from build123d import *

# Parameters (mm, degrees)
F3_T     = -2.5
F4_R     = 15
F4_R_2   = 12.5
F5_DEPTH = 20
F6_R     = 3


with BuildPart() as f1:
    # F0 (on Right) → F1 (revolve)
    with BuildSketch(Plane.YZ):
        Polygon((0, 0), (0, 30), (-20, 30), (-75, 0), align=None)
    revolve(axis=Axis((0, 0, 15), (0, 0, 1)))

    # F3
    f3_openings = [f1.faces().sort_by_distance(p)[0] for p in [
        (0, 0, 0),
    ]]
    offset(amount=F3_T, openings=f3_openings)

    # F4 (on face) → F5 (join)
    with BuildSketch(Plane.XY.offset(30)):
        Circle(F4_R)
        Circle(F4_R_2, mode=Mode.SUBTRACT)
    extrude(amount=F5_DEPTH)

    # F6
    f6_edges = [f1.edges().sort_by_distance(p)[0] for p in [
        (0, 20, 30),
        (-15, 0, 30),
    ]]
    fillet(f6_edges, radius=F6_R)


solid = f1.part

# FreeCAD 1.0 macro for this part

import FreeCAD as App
import Part
import Sketcher
from FreeCAD import Vector


def edges_at(feature, points):
    """Names of the edges that pass closest to the given points."""
    edges = feature.Shape.Edges
    near = lambda p: min(range(len(edges)), key=lambda i: edges[i].distToShape(Part.Vertex(*p))[0])
    return sorted({f"Edge{near(p) + 1}" for p in points})


def faces_at(feature, points):
    """Names of the faces that lie closest to the given points."""
    faces = feature.Shape.Faces
    near = lambda p: min(range(len(faces)), key=lambda i: faces[i].distToShape(Part.Vertex(*p))[0])
    return sorted({f"Face{near(p) + 1}" for p in points})

doc = App.newDocument("Part")
body = doc.addObject("PartDesign::Body", "Body")

sketch1 = doc.addObject("Sketcher::SketchObject", "Sketch")
body.addObject(sketch1)
sketch1.AttachmentSupport = (doc.YZ_Plane, [""])
sketch1.MapMode = "FlatFace"
sketch1.addGeometry([
    Part.LineSegment(Vector(0, 0, 0), Vector(0, 30, 0)),
    Part.LineSegment(Vector(0, 30, 0), Vector(-20, 30, 0)),
    Part.LineSegment(Vector(-20, 30, 0), Vector(-75, 0, 0)),
    Part.LineSegment(Vector(-75, 0, 0), Vector(0, 0, 0)),
], False)
sketch1.addConstraint([
    Sketcher.Constraint("Coincident", 0, 2, 1, 1),
    Sketcher.Constraint("Coincident", 1, 2, 2, 1),
    Sketcher.Constraint("Coincident", 2, 2, 3, 1),
    Sketcher.Constraint("Coincident", 3, 2, 0, 1),
    Sketcher.Constraint("Vertical", 0),
    Sketcher.Constraint("Horizontal", 1),
    Sketcher.Constraint("Horizontal", 3),
    Sketcher.Constraint("Coincident", 3, 2, -1, 1),
    Sketcher.Constraint("DistanceX", 1, 2, 1, 1, 20.0),
    Sketcher.Constraint("DistanceX", 3, 1, 3, 2, 75.0),
    Sketcher.Constraint("DistanceY", 0, 1, 0, 2, 30.0),
])
revolution = doc.addObject("PartDesign::Revolution", "Revolution")
body.addObject(revolution)
revolution.Profile = sketch1
revolution.ReferenceAxis = (sketch1, ["V_Axis"])
revolution.Angle = 360
doc.recompute()

thickness = doc.addObject("PartDesign::Thickness", "Thickness")
body.addObject(thickness)
thickness.Base = (revolution, faces_at(revolution, [(0, 0, 0)]))
thickness.Value = 2.5
thickness.Reversed = True
thickness.Join = "Arc"

sketch2 = doc.addObject("Sketcher::SketchObject", "Sketch001")
body.addObject(sketch2)
sketch2.AttachmentSupport = (doc.XY_Plane, [""])
sketch2.MapMode = "FlatFace"
sketch2.AttachmentOffset = App.Placement(Vector(0, 0, 30), App.Rotation())
sketch2.addGeometry([
    Part.Circle(Vector(0, 0, 0), Vector(0, 0, 1), 15),
    Part.Circle(Vector(0, 0, 0), Vector(0, 0, 1), 12),
], False)
sketch2.addConstraint([
    Sketcher.Constraint("Coincident", 0, 3, -1, 1),
    Sketcher.Constraint("Coincident", 1, 3, -1, 1),
    Sketcher.Constraint("Diameter", 0, 30.0),
    Sketcher.Constraint("Diameter", 1, 25.0),
])
pad1 = doc.addObject("PartDesign::Pad", "Pad")
body.addObject(pad1)
pad1.Profile = sketch2
pad1.Length = 20
doc.recompute()

fillet = doc.addObject("PartDesign::Fillet", "Fillet")
body.addObject(fillet)
fillet.Base = (pad1, edges_at(pad1, [(0, 20, 30), (-15, 0, 30)]))
fillet.Radius = 3

doc.recompute()
